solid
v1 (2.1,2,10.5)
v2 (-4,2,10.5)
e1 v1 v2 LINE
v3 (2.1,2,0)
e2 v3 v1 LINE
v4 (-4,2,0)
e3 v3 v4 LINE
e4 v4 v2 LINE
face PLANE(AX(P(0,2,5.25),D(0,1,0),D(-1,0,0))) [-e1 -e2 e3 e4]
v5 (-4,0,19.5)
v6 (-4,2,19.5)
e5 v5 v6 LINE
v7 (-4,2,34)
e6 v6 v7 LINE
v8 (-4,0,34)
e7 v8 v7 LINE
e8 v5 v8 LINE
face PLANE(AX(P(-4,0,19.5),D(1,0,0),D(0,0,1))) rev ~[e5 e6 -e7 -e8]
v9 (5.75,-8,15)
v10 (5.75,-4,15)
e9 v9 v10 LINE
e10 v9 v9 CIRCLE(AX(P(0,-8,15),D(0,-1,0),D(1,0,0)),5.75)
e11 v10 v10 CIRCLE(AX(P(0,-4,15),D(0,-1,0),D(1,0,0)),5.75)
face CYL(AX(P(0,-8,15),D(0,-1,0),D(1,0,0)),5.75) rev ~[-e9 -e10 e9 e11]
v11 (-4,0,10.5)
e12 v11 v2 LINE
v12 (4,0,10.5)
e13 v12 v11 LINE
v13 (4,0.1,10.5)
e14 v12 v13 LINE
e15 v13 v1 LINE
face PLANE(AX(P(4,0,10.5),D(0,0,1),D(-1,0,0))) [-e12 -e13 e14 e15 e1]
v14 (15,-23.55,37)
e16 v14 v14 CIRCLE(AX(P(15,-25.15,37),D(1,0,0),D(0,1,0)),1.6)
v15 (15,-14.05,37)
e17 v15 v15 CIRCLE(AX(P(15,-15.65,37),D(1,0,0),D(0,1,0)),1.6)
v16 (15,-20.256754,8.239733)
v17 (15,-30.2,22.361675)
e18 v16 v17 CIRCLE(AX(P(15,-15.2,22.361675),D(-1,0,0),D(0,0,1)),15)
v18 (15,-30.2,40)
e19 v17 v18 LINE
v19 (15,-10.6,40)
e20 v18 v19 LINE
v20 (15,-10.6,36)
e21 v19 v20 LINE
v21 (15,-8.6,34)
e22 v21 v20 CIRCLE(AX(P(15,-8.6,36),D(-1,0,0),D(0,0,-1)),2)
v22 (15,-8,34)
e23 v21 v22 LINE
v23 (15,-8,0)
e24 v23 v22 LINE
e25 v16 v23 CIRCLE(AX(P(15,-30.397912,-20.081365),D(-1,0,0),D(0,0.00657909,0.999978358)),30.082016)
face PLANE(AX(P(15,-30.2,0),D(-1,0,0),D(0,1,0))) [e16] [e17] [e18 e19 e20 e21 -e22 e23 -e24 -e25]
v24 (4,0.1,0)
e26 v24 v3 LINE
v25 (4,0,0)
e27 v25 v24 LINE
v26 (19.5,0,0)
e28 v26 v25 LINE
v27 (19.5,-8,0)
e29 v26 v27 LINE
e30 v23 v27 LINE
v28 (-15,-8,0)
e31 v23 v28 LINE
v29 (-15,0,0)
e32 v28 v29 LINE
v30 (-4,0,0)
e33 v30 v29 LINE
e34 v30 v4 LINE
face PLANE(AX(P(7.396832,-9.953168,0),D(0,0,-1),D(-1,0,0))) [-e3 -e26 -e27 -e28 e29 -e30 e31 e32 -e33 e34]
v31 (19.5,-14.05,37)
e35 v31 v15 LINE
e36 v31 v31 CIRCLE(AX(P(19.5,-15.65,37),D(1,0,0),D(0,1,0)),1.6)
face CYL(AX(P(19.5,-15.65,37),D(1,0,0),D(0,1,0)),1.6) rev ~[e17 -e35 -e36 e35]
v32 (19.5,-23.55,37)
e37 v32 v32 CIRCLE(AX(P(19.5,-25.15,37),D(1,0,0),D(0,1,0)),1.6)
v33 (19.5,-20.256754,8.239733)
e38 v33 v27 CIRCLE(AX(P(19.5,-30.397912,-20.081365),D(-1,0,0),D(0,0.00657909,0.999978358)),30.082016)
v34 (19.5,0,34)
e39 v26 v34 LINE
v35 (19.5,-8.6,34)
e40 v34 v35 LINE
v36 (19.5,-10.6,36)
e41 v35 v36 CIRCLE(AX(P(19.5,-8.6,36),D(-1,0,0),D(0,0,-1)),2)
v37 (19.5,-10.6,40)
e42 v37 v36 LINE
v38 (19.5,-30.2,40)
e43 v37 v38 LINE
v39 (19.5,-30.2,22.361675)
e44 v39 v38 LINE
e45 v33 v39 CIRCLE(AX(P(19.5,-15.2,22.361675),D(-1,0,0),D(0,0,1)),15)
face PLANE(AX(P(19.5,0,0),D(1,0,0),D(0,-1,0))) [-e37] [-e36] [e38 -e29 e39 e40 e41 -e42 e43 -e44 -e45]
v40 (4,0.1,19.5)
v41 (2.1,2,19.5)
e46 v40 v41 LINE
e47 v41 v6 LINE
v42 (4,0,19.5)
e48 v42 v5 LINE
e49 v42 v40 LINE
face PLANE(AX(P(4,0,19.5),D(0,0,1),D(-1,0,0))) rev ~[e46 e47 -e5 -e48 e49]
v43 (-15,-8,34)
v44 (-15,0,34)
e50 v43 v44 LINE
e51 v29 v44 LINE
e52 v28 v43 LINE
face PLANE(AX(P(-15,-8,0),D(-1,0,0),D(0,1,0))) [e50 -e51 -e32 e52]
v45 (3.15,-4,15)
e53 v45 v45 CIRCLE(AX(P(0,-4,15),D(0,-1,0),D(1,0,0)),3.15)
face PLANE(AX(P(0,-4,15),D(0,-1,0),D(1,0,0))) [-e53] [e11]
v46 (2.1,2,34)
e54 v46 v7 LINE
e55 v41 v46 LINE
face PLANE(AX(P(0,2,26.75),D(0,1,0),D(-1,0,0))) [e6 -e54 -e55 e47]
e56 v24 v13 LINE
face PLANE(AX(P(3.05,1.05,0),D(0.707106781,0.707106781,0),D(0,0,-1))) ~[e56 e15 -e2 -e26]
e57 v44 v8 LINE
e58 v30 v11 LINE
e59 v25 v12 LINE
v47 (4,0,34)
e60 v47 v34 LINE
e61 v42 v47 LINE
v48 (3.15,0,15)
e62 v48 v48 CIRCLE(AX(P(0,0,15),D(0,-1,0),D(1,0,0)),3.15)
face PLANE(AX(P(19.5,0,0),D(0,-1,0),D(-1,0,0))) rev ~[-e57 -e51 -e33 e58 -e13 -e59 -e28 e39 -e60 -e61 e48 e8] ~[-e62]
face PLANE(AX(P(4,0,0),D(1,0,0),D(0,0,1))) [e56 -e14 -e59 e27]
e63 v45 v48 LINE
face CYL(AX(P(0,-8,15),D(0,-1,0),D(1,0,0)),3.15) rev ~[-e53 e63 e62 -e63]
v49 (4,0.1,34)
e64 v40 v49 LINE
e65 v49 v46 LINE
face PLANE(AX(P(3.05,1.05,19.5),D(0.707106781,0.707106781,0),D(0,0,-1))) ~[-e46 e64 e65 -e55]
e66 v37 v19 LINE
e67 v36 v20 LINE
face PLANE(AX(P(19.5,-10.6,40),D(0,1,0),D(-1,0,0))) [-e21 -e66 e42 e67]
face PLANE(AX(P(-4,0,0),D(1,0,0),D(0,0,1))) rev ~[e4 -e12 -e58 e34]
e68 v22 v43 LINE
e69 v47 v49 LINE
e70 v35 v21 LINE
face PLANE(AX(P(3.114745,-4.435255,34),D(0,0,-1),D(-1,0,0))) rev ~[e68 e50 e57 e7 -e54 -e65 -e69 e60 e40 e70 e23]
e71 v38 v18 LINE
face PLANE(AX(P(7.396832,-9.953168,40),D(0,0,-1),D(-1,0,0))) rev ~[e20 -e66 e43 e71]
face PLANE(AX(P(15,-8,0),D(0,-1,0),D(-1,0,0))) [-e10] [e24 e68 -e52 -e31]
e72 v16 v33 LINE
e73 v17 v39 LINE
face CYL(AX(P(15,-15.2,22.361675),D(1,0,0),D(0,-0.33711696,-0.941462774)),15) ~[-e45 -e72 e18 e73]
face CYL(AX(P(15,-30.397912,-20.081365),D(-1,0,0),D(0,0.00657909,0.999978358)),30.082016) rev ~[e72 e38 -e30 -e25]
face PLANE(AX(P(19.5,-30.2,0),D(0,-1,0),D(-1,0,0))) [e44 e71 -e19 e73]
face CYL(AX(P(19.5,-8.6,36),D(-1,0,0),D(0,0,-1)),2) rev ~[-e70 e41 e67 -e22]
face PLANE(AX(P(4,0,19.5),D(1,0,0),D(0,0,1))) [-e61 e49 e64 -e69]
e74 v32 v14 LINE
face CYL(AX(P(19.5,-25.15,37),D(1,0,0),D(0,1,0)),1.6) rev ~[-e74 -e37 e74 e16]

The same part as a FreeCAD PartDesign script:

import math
import FreeCAD as App
import Part
import Sketcher

V = App.Vector


def edges_at(feature, points):
    """Names of the edges that pass closest to the given points."""
    edges = feature.Shape.Edges
    near = lambda p: min(range(len(edges)), key=lambda i: edges[i].distToShape(Part.Vertex(*p))[0])
    return sorted({f"Edge{near(p) + 1}" for p in points})


def add_polygon(sketch, points):
    """Adds a closed chain of lines whose ends are joined by coincident constraints."""
    first, n = sketch.GeometryCount, len(points)
    for a, b in zip(points, points[1:] + points[:1]):
        sketch.addGeometry(Part.LineSegment(App.Vector(*a, 0), App.Vector(*b, 0)), False)
    for i in range(n):
        sketch.addConstraint(Sketcher.Constraint("Coincident", first + i, 2, first + (i + 1) % n, 1))

doc = App.newDocument("Part")
body = doc.addObject("PartDesign::Body", "Body")

# Sketch on XY plane
sketch1 = body.newObject("Sketcher::SketchObject", "Sketch")
sketch1.AttachmentSupport = (doc.getObject("XY_Plane"), [""])
sketch1.MapMode = "FlatFace"
add_polygon(sketch1, [(19.5, 0), (-15, 0), (-15, -8), (15, -8), (15, -30.2), (19.5, -30.2)])  # lines 0-5
sketch1.addConstraint([
    Sketcher.Constraint("Horizontal", 0),
    Sketcher.Constraint("Vertical", 1),
    Sketcher.Constraint("Horizontal", 2),
    Sketcher.Constraint("Vertical", 3),
    Sketcher.Constraint("Horizontal", 4),
    Sketcher.Constraint("Vertical", 5),
    Sketcher.Constraint("PointOnObject", 0, 2, -1),
    Sketcher.Constraint("DistanceX", 2, 1, 2, 2, 30.0),
    Sketcher.Constraint("DistanceY", 1, 2, 1, 1, 8.0),
    Sketcher.Constraint("DistanceX", 0, 2, 0, 1, 34.5),
    Sketcher.Constraint("DistanceY", 3, 2, 3, 1, 22.2),
    Sketcher.Constraint("DistanceX", 0, 2, -1, 1, 15.0),
])
pad1 = body.newObject("PartDesign::Pad", "Pad")
pad1.Profile = sketch1
pad1.Length = 40

# Sketch on XZ plane
sketch2 = body.newObject("Sketcher::SketchObject", "Sketch001")
sketch2.AttachmentSupport = (doc.getObject("XZ_Plane"), [""])
sketch2.MapMode = "FlatFace"
sketch2.AttachmentOffset = App.Placement(V(0, 0, 8), App.Rotation())
sketch2.addGeometry(Part.Circle(V(0, 15, 0), V(0, 0, 1), 3.1), False)
sketch2.addConstraint([
    Sketcher.Constraint("PointOnObject", 0, 3, -2),
    Sketcher.Constraint("Diameter", 0, 6.3),
    Sketcher.Constraint("DistanceY", -1, 1, 0, 3, 15.0),
])
pocket1 = body.newObject("PartDesign::Pocket", "Pocket")
pocket1.Profile = sketch2
pocket1.Type = "ThroughAll"

# Sketch on XY plane
sketch3 = body.newObject("Sketcher::SketchObject", "Sketch002")
sketch3.AttachmentSupport = (doc.getObject("XY_Plane"), [""])
sketch3.MapMode = "FlatFace"
sketch3.AttachmentOffset = App.Placement(V(0, 0, 40), App.Rotation())
add_polygon(sketch3, [(19.5, 0), (-15, 0), (-15, -8), (15, -8), (15, -10.6), (19.5, -10.6)])  # lines 0-5
sketch3.addConstraint([
    Sketcher.Constraint("Horizontal", 0),
    Sketcher.Constraint("Vertical", 1),
    Sketcher.Constraint("Horizontal", 2),
    Sketcher.Constraint("Vertical", 3),
    Sketcher.Constraint("Horizontal", 4),
    Sketcher.Constraint("Vertical", 5),
    Sketcher.Constraint("PointOnObject", 0, 2, -1),
    Sketcher.Constraint("DistanceX", 2, 1, 2, 2, 30.0),
    Sketcher.Constraint("DistanceY", 1, 2, 1, 1, 8.0),
    Sketcher.Constraint("DistanceX", 0, 2, 0, 1, 34.5),
    Sketcher.Constraint("DistanceY", 3, 2, 3, 1, 2.6),
    Sketcher.Constraint("DistanceX", 0, 2, -1, 1, 15.0),
])
pocket2 = body.newObject("PartDesign::Pocket", "Pocket001")
pocket2.Profile = sketch3
pocket2.Length = 6

# Sketch on XZ plane
sketch4 = body.newObject("Sketcher::SketchObject", "Sketch003")
sketch4.AttachmentSupport = (doc.getObject("XZ_Plane"), [""])
sketch4.MapMode = "FlatFace"
sketch4.AttachmentOffset = App.Placement(V(0, 0, 8), App.Rotation())
sketch4.addGeometry(Part.Circle(V(0, 15, 0), V(0, 0, 1), 6), False)
sketch4.addConstraint([
    Sketcher.Constraint("PointOnObject", 0, 3, -2),
    Sketcher.Constraint("Diameter", 0, 11.5),
    Sketcher.Constraint("DistanceY", -1, 1, 0, 3, 15.0),
])
pocket3 = body.newObject("PartDesign::Pocket", "Pocket002")
pocket3.Profile = sketch4
pocket3.Length = 4

# Sketch on YZ plane
sketch5 = body.newObject("Sketcher::SketchObject", "Sketch004")
sketch5.AttachmentSupport = (doc.getObject("YZ_Plane"), [""])
sketch5.MapMode = "FlatFace"
sketch5.AttachmentOffset = App.Placement(V(0, 0, 15), App.Rotation())
sketch5.addGeometry([
    Part.ArcOfCircle(Part.Circle(V(-30, -20, 0), V(0, 0, 1), 30), math.radians(42), math.radians(90)),
    Part.LineSegment(V(-8, 0, 0), V(-30, 0, 0)),
    Part.LineSegment(V(-30, 0, 0), V(-30, 10, 0)),
], False)
sketch5.addConstraint([
    Sketcher.Constraint("Coincident", 0, 1, 1, 1),
    Sketcher.Constraint("Coincident", 1, 2, 2, 1),
    Sketcher.Constraint("Coincident", 2, 2, 0, 2),
    Sketcher.Constraint("Horizontal", 1),
    Sketcher.Constraint("Vertical", 2),
    Sketcher.Constraint("PointOnObject", 0, 1, -1),
    Sketcher.Constraint("DistanceY", 2, 1, 2, 2, 10.0),
    Sketcher.Constraint("DistanceX", 1, 2, 1, 1, 22.2),
    Sketcher.Constraint("DistanceX", 0, 1, -1, 1, 8.0),
    Sketcher.Constraint("Radius", 0, 30.082016),
])
pocket4 = body.newObject("PartDesign::Pocket", "Pocket003")
pocket4.Profile = sketch5
pocket4.Type = "ThroughAll"
pocket4.Reversed = True
doc.recompute()

fillet = body.newObject("PartDesign::Fillet", "Fillet")
fillet.Base = (pocket4, edges_at(pocket4, [(17.25, -30.2, 10)]))
fillet.Radius = 15
doc.recompute()

fillet2 = body.newObject("PartDesign::Fillet", "Fillet001")
fillet2.Base = (fillet, edges_at(fillet, [(17.25, -10.6, 34)]))
fillet2.Radius = 2

# Sketch on YZ plane
sketch6 = body.newObject("Sketcher::SketchObject", "Sketch005")
sketch6.AttachmentSupport = (doc.getObject("YZ_Plane"), [""])
sketch6.MapMode = "FlatFace"
sketch6.AttachmentOffset = App.Placement(V(0, 0, 19.5), App.Rotation())
sketch6.addGeometry([
    Part.Circle(V(-15.7, 37, 0), V(0, 0, 1), 1.6),
    Part.Circle(V(-25.1, 37, 0), V(0, 0, 1), 1.6),
], False)
sketch6.addConstraint([
    Sketcher.Constraint("Equal", 0, 1),
    Sketcher.Constraint("Horizontal", 0, 3, 1, 3),
    Sketcher.Constraint("Diameter", 0, 3.2),
    Sketcher.Constraint("DistanceY", -1, 1, 0, 3, 37.0),
    Sketcher.Constraint("DistanceX", 1, 3, 0, 3, 9.5),
    Sketcher.Constraint("DistanceX", 0, 3, -1, 1, 15.65),
])
pocket5 = body.newObject("PartDesign::Pocket", "Pocket004")
pocket5.Profile = sketch6
pocket5.Type = "ThroughAll"

# Sketch on XZ plane
sketch7 = body.newObject("Sketcher::SketchObject", "Sketch006")
sketch7.AttachmentSupport = (doc.getObject("XZ_Plane"), [""])
sketch7.MapMode = "FlatFace"
add_polygon(sketch7, [(4, 34), (4, 20), (-4, 20), (-4, 34)])  # lines 0-3
add_polygon(sketch7, [(4, 10), (4, 0), (-4, 0), (-4, 10)])  # lines 4-7
sketch7.addConstraint([
    Sketcher.Constraint("Vertical", 0),
    Sketcher.Constraint("Horizontal", 1),
    Sketcher.Constraint("Vertical", 2),
    Sketcher.Constraint("Horizontal", 3),
    Sketcher.Constraint("Vertical", 4),
    Sketcher.Constraint("Horizontal", 5),
    Sketcher.Constraint("Vertical", 6),
    Sketcher.Constraint("Horizontal", 7),
    Sketcher.Constraint("Symmetric", 4, 2, 5, 2, -1, 1),
    Sketcher.Constraint("Vertical", 3, 2, 4, 2),
    Sketcher.Constraint("Vertical", 2, 2, 5, 2),
    Sketcher.Constraint("DistanceX", 1, 2, 1, 1, 8.0),
    Sketcher.Constraint("DistanceY", 0, 2, 0, 1, 14.5),
    Sketcher.Constraint("DistanceY", 4, 2, 4, 1, 10.5),
    Sketcher.Constraint("DistanceY", -1, 1, 2, 2, 34.0),
])
pad2 = body.newObject("PartDesign::Pad", "Pad001")
pad2.Profile = sketch7
pad2.Length = 2
pad2.Reversed = True
doc.recompute()

chamfer = body.newObject("PartDesign::Chamfer", "Chamfer")
chamfer.Base = (pad2, edges_at(pad2, [(4, 2, 26.75), (4, 2, 5.25)]))
chamfer.Size = 1.9

doc.recompute()
